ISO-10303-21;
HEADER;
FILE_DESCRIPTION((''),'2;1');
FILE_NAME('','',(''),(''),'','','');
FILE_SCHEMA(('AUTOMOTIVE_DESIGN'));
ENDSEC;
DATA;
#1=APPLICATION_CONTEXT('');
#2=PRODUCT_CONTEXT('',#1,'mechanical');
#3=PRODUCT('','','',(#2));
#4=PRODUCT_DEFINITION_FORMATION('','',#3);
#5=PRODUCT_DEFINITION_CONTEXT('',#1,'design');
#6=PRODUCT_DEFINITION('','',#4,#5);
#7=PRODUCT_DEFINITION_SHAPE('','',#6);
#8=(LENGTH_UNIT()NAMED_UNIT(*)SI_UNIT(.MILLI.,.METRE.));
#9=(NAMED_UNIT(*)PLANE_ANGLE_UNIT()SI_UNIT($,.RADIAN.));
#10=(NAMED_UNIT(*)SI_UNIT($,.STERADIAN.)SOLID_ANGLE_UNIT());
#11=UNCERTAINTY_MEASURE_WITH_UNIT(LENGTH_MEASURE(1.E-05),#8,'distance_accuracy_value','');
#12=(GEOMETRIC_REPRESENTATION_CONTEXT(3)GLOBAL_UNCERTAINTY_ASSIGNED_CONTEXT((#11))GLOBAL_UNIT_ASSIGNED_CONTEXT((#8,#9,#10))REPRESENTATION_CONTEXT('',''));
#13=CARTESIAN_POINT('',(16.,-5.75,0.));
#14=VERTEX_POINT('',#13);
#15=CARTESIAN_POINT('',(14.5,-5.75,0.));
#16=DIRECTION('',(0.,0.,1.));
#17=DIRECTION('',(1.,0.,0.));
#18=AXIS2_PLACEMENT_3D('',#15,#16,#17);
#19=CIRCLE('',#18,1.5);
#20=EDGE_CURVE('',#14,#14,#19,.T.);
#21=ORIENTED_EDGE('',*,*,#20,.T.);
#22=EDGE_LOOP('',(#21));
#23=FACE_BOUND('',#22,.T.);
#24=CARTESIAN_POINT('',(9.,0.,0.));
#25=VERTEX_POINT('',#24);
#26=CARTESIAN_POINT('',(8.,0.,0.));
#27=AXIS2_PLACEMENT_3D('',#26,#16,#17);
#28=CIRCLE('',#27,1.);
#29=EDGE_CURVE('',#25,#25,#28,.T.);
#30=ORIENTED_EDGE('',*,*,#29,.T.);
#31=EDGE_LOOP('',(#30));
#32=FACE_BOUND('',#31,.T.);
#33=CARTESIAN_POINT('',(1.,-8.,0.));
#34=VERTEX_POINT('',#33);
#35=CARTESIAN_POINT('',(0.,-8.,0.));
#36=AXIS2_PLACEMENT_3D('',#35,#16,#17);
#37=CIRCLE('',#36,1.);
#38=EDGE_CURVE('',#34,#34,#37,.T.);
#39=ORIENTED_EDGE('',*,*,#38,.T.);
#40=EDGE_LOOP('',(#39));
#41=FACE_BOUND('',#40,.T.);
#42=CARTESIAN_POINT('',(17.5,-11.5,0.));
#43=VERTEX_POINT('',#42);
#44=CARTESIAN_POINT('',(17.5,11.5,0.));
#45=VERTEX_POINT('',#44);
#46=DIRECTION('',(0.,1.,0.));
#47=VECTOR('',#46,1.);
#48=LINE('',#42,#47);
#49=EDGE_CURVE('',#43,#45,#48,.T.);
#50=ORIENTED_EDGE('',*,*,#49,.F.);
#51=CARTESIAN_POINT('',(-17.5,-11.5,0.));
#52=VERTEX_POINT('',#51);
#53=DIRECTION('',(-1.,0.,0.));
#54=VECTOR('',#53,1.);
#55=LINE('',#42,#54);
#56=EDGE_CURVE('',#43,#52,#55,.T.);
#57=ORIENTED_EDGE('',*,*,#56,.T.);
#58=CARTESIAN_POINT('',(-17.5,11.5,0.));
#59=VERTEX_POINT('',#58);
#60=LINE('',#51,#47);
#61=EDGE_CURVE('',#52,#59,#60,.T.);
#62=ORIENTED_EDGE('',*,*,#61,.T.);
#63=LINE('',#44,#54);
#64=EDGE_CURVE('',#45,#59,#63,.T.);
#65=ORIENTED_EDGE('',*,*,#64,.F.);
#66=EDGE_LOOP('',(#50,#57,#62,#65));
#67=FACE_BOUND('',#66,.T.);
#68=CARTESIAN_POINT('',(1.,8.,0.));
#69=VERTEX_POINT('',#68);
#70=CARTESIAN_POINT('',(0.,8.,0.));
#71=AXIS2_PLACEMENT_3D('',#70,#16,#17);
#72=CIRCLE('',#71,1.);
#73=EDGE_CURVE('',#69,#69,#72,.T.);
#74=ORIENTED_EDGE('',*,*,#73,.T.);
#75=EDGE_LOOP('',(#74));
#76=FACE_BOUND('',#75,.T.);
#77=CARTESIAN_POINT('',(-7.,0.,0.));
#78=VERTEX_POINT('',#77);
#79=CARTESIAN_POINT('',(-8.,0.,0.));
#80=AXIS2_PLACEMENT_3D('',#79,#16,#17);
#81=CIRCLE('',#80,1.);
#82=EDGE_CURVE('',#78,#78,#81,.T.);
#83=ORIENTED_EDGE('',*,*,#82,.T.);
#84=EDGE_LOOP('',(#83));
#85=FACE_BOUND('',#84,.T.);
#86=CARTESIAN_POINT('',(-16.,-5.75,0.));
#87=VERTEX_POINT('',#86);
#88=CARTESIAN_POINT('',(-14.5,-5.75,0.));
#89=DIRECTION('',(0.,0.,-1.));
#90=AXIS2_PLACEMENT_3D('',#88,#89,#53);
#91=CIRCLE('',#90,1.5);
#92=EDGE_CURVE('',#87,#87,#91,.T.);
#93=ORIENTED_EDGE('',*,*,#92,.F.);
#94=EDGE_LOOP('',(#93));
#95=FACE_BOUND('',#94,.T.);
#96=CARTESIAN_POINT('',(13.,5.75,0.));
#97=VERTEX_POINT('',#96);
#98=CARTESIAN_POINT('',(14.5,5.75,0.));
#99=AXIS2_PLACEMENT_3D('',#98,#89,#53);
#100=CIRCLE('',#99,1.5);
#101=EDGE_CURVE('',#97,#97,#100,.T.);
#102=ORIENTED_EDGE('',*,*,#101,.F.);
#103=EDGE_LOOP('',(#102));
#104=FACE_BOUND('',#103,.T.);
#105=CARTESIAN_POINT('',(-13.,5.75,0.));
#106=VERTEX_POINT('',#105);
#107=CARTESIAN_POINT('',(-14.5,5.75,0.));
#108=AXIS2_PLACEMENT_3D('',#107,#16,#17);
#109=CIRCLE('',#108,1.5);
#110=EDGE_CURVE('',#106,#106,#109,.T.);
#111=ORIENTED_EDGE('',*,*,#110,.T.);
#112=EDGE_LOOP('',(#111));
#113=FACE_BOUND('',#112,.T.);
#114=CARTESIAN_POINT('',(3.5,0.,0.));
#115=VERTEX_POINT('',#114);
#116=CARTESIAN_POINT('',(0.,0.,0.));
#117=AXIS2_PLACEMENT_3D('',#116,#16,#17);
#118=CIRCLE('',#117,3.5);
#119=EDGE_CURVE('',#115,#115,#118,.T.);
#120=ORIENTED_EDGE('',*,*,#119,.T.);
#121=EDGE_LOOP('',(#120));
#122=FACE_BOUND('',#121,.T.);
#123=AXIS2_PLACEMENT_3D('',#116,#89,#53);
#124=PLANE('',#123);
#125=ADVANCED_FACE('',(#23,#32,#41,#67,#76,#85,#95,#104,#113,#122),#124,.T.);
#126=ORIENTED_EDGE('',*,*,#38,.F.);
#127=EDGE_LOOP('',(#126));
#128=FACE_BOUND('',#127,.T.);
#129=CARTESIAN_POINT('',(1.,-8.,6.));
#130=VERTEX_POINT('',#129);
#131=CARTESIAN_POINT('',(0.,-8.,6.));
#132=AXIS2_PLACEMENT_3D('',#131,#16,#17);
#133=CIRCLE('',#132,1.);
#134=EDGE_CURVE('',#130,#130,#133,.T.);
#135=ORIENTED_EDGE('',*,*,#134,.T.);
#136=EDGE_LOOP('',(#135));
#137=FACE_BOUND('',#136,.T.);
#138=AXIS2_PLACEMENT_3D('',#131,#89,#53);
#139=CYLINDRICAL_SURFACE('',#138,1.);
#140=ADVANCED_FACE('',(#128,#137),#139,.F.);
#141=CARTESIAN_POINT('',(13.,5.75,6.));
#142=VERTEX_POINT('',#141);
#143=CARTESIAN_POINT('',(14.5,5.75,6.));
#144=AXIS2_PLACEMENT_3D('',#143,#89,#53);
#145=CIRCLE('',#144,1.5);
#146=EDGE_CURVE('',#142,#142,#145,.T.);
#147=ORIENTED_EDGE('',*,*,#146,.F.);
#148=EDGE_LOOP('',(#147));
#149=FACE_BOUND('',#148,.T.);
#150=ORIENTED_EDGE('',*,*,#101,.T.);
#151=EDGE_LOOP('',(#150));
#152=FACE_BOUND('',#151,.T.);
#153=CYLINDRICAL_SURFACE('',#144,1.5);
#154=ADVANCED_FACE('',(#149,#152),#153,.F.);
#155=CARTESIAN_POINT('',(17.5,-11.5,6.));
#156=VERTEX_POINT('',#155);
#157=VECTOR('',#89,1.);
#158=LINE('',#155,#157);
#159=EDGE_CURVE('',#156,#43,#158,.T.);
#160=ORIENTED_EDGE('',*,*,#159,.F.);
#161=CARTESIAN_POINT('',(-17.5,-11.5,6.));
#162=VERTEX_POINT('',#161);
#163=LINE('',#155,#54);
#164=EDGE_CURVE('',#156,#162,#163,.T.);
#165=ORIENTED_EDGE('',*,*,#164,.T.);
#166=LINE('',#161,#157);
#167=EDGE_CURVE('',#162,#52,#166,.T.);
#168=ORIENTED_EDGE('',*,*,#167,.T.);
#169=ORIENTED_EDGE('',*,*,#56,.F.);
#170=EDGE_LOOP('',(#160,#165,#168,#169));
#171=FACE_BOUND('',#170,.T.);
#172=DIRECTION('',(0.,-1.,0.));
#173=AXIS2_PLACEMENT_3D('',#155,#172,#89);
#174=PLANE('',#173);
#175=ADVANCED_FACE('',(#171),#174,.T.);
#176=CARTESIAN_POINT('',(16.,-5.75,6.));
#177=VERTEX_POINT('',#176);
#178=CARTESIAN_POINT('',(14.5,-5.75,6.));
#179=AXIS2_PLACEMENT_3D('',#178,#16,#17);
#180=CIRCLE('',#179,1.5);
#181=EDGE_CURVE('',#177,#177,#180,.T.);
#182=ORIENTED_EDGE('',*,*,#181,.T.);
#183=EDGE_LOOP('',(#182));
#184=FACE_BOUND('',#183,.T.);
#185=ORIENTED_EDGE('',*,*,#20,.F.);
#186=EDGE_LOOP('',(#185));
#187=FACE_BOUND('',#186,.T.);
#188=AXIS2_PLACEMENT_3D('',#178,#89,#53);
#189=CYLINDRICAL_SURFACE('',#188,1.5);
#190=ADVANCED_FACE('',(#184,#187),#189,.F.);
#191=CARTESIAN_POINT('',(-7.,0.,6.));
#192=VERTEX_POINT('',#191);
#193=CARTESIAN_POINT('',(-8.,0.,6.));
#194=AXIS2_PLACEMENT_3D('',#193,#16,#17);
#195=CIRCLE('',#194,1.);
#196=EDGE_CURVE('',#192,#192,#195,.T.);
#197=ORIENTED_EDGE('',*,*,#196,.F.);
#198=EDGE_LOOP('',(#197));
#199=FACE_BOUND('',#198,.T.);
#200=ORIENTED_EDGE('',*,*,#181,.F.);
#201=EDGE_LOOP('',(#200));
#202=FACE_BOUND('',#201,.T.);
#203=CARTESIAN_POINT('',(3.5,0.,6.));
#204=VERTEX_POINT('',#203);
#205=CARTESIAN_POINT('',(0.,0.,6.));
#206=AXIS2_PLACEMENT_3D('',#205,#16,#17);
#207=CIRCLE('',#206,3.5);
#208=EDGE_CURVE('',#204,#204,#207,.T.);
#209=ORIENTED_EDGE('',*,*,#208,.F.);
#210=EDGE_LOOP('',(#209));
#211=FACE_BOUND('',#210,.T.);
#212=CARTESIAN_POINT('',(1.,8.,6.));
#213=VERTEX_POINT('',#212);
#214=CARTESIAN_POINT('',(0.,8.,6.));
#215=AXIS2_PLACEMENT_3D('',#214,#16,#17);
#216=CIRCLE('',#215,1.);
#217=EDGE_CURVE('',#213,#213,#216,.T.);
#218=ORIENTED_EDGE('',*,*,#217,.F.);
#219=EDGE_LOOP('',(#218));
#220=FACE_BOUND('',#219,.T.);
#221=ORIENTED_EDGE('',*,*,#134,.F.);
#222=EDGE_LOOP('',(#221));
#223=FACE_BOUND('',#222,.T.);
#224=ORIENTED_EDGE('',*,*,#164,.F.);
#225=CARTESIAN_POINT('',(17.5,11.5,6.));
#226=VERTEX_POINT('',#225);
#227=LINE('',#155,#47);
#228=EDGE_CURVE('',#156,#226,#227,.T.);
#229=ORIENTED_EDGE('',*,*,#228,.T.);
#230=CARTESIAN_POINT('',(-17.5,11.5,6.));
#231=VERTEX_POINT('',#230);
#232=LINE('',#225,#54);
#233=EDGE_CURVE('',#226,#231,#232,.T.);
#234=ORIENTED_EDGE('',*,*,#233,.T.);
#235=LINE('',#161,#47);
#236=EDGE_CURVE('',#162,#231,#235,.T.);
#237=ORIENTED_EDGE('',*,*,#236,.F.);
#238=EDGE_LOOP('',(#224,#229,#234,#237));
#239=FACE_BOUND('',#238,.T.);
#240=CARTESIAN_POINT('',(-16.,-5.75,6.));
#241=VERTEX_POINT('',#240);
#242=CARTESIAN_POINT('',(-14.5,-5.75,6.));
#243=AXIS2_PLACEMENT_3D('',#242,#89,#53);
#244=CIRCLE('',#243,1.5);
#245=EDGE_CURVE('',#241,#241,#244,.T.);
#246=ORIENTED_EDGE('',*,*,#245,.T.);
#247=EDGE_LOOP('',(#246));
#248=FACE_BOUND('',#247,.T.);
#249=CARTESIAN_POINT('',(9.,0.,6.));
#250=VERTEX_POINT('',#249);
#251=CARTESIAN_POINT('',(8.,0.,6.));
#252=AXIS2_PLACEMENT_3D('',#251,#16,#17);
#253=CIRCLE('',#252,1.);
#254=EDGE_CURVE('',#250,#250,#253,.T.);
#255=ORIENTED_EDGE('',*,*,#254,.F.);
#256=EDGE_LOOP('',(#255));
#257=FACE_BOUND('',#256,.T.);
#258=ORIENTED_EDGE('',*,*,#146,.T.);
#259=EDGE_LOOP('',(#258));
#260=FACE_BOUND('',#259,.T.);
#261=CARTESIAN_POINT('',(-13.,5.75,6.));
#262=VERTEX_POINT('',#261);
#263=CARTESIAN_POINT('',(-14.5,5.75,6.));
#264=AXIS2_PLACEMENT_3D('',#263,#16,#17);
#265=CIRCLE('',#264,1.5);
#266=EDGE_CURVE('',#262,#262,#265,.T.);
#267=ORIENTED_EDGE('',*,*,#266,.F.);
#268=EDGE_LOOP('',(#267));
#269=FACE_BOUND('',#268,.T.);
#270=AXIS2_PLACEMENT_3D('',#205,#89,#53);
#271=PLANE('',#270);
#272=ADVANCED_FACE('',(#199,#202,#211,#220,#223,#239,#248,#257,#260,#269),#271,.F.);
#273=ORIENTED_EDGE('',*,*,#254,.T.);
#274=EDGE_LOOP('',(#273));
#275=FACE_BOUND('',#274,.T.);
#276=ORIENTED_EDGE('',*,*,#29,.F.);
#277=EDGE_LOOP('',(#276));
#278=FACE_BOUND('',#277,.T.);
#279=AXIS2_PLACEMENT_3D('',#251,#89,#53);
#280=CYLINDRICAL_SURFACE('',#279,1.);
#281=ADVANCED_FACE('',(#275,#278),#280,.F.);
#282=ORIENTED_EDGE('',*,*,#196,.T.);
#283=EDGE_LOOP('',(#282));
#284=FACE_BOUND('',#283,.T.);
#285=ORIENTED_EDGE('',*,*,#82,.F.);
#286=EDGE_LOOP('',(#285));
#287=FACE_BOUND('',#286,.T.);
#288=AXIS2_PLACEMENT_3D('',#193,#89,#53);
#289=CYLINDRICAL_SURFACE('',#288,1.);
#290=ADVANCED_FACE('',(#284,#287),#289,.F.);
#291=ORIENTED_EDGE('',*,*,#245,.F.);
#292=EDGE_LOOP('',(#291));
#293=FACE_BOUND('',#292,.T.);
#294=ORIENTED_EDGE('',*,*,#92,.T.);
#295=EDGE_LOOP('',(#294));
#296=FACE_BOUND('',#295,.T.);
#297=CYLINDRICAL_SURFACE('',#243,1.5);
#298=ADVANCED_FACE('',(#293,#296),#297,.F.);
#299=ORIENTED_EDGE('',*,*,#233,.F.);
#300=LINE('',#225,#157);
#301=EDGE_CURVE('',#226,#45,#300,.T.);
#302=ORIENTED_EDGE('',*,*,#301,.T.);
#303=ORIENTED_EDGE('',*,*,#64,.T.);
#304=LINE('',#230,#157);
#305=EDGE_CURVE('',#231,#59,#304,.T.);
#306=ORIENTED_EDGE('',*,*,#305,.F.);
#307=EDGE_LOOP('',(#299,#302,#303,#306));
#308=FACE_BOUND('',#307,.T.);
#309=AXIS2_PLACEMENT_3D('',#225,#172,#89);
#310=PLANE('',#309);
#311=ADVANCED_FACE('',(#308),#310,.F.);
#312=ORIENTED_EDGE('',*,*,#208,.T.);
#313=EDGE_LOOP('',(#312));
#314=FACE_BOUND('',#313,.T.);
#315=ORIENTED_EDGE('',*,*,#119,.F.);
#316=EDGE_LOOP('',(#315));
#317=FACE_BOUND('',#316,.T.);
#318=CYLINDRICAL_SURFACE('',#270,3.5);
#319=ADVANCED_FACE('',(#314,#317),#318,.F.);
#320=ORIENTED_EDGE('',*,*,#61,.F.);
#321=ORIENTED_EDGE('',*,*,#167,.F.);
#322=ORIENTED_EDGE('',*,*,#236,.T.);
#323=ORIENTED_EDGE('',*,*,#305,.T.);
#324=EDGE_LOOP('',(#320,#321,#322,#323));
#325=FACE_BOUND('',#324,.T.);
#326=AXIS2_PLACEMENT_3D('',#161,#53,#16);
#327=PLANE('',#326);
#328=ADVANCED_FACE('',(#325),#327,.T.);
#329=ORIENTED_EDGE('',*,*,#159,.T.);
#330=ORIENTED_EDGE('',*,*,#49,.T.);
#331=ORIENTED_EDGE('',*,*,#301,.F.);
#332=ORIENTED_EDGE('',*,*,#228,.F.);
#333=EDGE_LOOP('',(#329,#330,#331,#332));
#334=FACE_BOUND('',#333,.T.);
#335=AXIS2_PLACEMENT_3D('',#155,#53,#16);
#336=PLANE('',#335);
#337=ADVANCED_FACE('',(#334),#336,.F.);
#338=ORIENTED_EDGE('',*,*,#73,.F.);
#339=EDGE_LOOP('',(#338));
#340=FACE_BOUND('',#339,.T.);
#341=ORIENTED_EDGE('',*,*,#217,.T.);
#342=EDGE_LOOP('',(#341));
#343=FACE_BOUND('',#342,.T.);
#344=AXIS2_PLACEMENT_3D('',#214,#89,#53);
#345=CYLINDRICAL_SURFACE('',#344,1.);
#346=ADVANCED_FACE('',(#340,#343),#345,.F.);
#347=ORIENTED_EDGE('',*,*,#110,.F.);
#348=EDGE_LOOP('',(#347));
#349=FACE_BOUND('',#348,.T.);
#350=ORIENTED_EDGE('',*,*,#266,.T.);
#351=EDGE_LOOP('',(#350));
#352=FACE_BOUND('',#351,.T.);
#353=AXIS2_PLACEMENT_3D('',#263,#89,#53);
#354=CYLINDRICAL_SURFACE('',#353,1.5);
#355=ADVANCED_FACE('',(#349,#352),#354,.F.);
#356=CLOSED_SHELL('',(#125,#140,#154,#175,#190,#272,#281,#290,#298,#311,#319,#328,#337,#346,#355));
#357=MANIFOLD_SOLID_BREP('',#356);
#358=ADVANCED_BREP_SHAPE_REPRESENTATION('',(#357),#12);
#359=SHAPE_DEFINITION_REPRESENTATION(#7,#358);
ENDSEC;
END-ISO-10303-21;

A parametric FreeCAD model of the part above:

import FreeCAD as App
import Part
import Sketcher
from FreeCAD import Vector
Q = App.Units.Quantity


def add_polygon(sketch, points):
    """Adds a closed chain of lines whose ends are joined by coincident constraints."""
    first, n = sketch.GeometryCount, len(points)
    for a, b in zip(points, points[1:] + points[:1]):
        sketch.addGeometry(Part.LineSegment(App.Vector(*a, 0), App.Vector(*b, 0)), False)
    for i in range(n):
        sketch.addConstraint(Sketcher.Constraint("Coincident", first + i, 2, first + (i + 1) % n, 1))

doc = App.newDocument("Part")
body = doc.addObject("PartDesign::Body", "Body")

sketch1 = body.newObject("Sketcher::SketchObject", "Sketch")
sketch1.AttachmentSupport = (doc.getObject("XY_Plane"), [""])
sketch1.MapMode = "FlatFace"
add_polygon(sketch1, [(-17.5, 11.5), (-17.5, -11.5), (17.5, -11.5), (17.5, 11.5)])
sketch1.addGeometry(Part.Circle(Vector(-14.5, -5.8, 0), Vector(0, 0, 1), 1.5), False)
sketch1.addGeometry(Part.Circle(Vector(0, -8, 0), Vector(0, 0, 1), 1), False)
sketch1.addGeometry(Part.Circle(Vector(14.5, -5.8, 0), Vector(0, 0, 1), 1.5), False)
sketch1.addGeometry(Part.Circle(Vector(-8, 0, 0), Vector(0, 0, 1), 1), False)
sketch1.addGeometry(Part.Circle(Vector(-14.5, 5.8, 0), Vector(0, 0, 1), 1.5), False)
sketch1.addGeometry(Part.Circle(Vector(0, 0, 0), Vector(0, 0, 1), 3.5), False)
sketch1.addGeometry(Part.Circle(Vector(8, 0, 0), Vector(0, 0, 1), 1), False)
sketch1.addGeometry(Part.Circle(Vector(0, 8, 0), Vector(0, 0, 1), 1), False)
sketch1.addGeometry(Part.Circle(Vector(14.5, 5.8, 0), Vector(0, 0, 1), 1.5), False)
sketch1.addConstraint([
    Sketcher.Constraint("Vertical", 0),
    Sketcher.Constraint("Horizontal", 1),
    Sketcher.Constraint("Vertical", 2),
    Sketcher.Constraint("Horizontal", 3),
    Sketcher.Constraint("Coincident", 9, 3, -1, 1),
    Sketcher.Constraint("Equal", 4, 6),
    Sketcher.Constraint("Equal", 5, 7),
    Sketcher.Constraint("Equal", 6, 8),
    Sketcher.Constraint("Equal", 7, 10),
    Sketcher.Constraint("Equal", 10, 11),
    Sketcher.Constraint("Equal", 8, 12),
    Sketcher.Constraint("Symmetric", 6, 3, 8, 3, -1, 1),
    Sketcher.Constraint("Symmetric", 7, 3, 10, 3, -1, 1),
    Sketcher.Constraint("Symmetric", 5, 3, 11, 3, -1, 1),
    Sketcher.Constraint("Symmetric", 4, 3, 12, 3, -1, 1),
    Sketcher.Constraint("Symmetric", 0, 2, 2, 2, -1, 1),
    Sketcher.Constraint("Symmetric", 4, 3, 6, 3, -2),
    Sketcher.Constraint("PointOnObject", 5, 3, -2),
    Sketcher.Constraint("PointOnObject", 7, 3, -1),
    Sketcher.Constraint("Diameter", 4, Q("3 mm")),
    Sketcher.Constraint("Diameter", 5, Q("2 mm")),
    Sketcher.Constraint("Diameter", 9, Q("7 mm")),
    Sketcher.Constraint("DistanceX", 1, 1, 1, 2, Q("35 mm")),
    Sketcher.Constraint("DistanceY", 0, 2, 0, 1, Q("23 mm")),
    Sketcher.Constraint("DistanceY", 5, 3, -1, 1, Q("8 mm")),
    Sketcher.Constraint("DistanceX", 7, 3, -1, 1, Q("8 mm")),
    Sketcher.Constraint("DistanceX", 4, 3, 6, 3, Q("29 mm")),
    Sketcher.Constraint("DistanceY", 4, 3, 8, 3, Q("11.5 mm")),
])
pad1 = body.newObject("PartDesign::Pad", "Pad")
pad1.Profile = sketch1
pad1.Length = 6

doc.recompute()
